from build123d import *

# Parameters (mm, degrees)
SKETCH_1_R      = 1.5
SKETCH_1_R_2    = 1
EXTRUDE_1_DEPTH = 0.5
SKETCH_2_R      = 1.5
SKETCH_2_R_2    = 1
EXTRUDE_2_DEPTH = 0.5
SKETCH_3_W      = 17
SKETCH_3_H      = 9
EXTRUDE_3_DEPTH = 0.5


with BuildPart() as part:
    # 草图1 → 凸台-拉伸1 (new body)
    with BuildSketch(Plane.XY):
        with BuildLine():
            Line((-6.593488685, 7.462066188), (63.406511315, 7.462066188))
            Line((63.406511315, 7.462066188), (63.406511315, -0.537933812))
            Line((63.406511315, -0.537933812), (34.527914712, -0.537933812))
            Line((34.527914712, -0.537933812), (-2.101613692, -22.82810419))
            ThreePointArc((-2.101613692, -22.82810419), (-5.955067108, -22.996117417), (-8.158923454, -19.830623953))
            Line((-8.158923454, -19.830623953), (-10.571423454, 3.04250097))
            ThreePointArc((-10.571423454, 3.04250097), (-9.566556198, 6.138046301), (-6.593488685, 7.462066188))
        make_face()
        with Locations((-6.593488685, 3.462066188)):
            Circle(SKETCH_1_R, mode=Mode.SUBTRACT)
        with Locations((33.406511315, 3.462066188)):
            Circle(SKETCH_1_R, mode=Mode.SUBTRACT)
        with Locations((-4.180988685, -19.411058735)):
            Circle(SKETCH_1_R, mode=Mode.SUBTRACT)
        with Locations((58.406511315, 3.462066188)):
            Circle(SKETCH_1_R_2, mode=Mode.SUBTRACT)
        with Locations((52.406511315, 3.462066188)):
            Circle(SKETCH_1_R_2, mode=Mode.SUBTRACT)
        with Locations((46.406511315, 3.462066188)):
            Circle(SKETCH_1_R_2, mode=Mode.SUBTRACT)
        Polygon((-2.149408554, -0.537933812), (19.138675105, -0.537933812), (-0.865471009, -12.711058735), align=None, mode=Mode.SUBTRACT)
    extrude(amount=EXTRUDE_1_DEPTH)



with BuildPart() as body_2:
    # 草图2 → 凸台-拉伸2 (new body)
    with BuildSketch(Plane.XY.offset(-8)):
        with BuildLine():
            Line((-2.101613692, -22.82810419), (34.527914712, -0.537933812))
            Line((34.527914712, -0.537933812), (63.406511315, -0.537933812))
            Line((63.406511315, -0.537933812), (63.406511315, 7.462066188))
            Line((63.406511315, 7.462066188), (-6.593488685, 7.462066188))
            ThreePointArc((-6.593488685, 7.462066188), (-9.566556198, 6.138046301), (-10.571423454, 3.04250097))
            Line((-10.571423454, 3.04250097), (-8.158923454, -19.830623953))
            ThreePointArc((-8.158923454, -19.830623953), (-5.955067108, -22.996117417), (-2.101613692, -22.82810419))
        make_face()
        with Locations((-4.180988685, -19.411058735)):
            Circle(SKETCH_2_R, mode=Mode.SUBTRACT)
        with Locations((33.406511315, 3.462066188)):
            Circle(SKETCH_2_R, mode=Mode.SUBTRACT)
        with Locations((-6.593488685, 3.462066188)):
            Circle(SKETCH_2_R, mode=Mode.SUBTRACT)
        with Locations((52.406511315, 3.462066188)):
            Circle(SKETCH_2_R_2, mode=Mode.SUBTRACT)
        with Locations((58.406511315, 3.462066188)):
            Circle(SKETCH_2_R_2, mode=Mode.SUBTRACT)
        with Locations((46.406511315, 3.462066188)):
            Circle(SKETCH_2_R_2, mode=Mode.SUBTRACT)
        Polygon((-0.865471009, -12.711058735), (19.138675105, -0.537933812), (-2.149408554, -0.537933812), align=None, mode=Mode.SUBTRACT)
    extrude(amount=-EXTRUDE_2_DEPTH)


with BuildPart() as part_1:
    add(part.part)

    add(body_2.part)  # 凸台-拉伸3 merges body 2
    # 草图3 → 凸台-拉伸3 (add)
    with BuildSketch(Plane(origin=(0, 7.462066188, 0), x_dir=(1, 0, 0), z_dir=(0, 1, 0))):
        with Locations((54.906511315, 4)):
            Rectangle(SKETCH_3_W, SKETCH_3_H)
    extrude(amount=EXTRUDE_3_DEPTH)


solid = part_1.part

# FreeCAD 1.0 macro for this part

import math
import FreeCAD as App
import Part
import Sketcher
from FreeCAD import Vector
Q = App.Units.Quantity

doc = App.newDocument("Part")
body = doc.addObject("PartDesign::Body", "Body")

# Sketch on XY plane
sketch1 = body.newObject("Sketcher::SketchObject", "Sketch")
sketch1.AttachmentSupport = (doc.getObject("XY_Plane"), [""])
sketch1.MapMode = "FlatFace"
sketch1.addGeometry([
    Part.LineSegment(Vector(63.406511, 7.462066, 0), Vector(-6.593489, 7.462066, 0)),  # 0
    Part.ArcOfCircle(Part.Circle(Vector(-6.593489, 3.462066, 0), Vector(0, 0, 1), 4), math.radians(90), math.radians(186.020904)),  # 1
    Part.LineSegment(Vector(-10.571423, 3.042501, 0), Vector(-8.158923, -19.830624, 0)),  # 2
    Part.ArcOfCircle(Part.Circle(Vector(-4.180989, -19.411059, 0), Vector(0, 0, 1), 4), math.radians(-173.979096), math.radians(-58.678229)),  # 3
    Part.LineSegment(Vector(-2.101614, -22.828104, 0), Vector(34.527915, -0.537934, 0)),  # 4
    Part.LineSegment(Vector(34.527915, -0.537934, 0), Vector(63.406511, -0.537934, 0)),  # 5
    Part.LineSegment(Vector(63.406511, -0.537934, 0), Vector(63.406511, 7.462066, 0)),  # 6
    Part.Circle(Vector(-4.180989, -19.411059, 0), Vector(0, 0, 1), 1.5),  # 7
    Part.Circle(Vector(58.406511, 3.462066, 0), Vector(0, 0, 1), 1),  # 8
    Part.Circle(Vector(52.406511, 3.462066, 0), Vector(0, 0, 1), 1),  # 9
    Part.Circle(Vector(46.406511, 3.462066, 0), Vector(0, 0, 1), 1),  # 10
    Part.Circle(Vector(33.406511, 3.462066, 0), Vector(0, 0, 1), 1.5),  # 11
    Part.LineSegment(Vector(-2.149409, -0.537934, 0), Vector(19.138675, -0.537934, 0)),  # 12
    Part.LineSegment(Vector(19.138675, -0.537934, 0), Vector(-0.865471, -12.711059, 0)),  # 13
    Part.LineSegment(Vector(-0.865471, -12.711059, 0), Vector(-2.149409, -0.537934, 0)),  # 14
    Part.Circle(Vector(-6.593489, 3.462066, 0), Vector(0, 0, 1), 1.5),  # 15
], False)
sketch1.addConstraint([
    Sketcher.Constraint("Tangent", 0, 2, 1, 1),
    Sketcher.Constraint("Tangent", 1, 2, 2, 1),
    Sketcher.Constraint("Tangent", 2, 2, 3, 1),
    Sketcher.Constraint("Tangent", 3, 2, 4, 1),
    Sketcher.Constraint("Coincident", 4, 2, 5, 1),
    Sketcher.Constraint("Coincident", 5, 2, 6, 1),
    Sketcher.Constraint("Coincident", 6, 2, 0, 1),
    Sketcher.Constraint("Coincident", 12, 2, 13, 1),
    Sketcher.Constraint("Coincident", 13, 2, 14, 1),
    Sketcher.Constraint("Coincident", 14, 2, 12, 1),
    Sketcher.Constraint("Horizontal", 0),
    Sketcher.Constraint("Horizontal", 5),
    Sketcher.Constraint("Vertical", 6),
    Sketcher.Constraint("Horizontal", 12),
    Sketcher.Constraint("Coincident", 7, 3, 3, 3),
    Sketcher.Constraint("Coincident", 15, 3, 1, 3),
    Sketcher.Constraint("Equal", 1, 3),
    Sketcher.Constraint("Equal", 8, 9),
    Sketcher.Constraint("Equal", 9, 10),
    Sketcher.Constraint("Equal", 7, 11),
    Sketcher.Constraint("Equal", 11, 15),
    Sketcher.Constraint("Parallel", 4, 13),
    Sketcher.Constraint("Parallel", 2, 14),
    Sketcher.Constraint("Horizontal", 1, 3, 8, 3),
    Sketcher.Constraint("Horizontal", 8, 3, 9, 3),
    Sketcher.Constraint("Horizontal", 9, 3, 10, 3),
    Sketcher.Constraint("Horizontal", 10, 3, 11, 3),
    Sketcher.Constraint("Horizontal", 5, 2, 12, 2),
    Sketcher.Constraint("Diameter", 7, Q("3 mm")),
    Sketcher.Constraint("Diameter", 8, Q("2 mm")),
    Sketcher.Constraint("Radius", 1, Q("4 mm")),
    Sketcher.Constraint("DistanceX", 0, 2, 0, 1, Q("70 mm")),
    Sketcher.Constraint("DistanceY", 6, 1, 6, 2, Q("8 mm")),
    Sketcher.Constraint("Distance", 2, Q("23 mm")),
    Sketcher.Constraint("DistanceX", 1, 3, 8, 3, Q("65 mm")),
    Sketcher.Constraint("DistanceX", 9, 3, 8, 3, Q("6 mm")),
    Sketcher.Constraint("DistanceX", 10, 3, 9, 3, Q("6 mm")),
    Sketcher.Constraint("DistanceX", 11, 3, 10, 3, Q("13 mm")),
    Sketcher.Constraint("DistanceY", 7, 3, 13, 2, Q("6.7 mm")),
    Sketcher.Constraint("DistanceY", -1, 1, 1, 2, Q("3.042501 mm")),
    Sketcher.Constraint("DistanceX", 1, 3, 3, 3, Q("2.4125 mm")),
    Sketcher.Constraint("DistanceX", 5, 1, 5, 2, Q("28.878597 mm")),
    Sketcher.Constraint("DistanceX", 1, 3, -1, 1, Q("6.593489 mm")),
    Sketcher.Constraint("DistanceX", 13, 2, -1, 1, Q("0.865471 mm")),
])
pad1 = body.newObject("PartDesign::Pad", "Pad")
pad1.Profile = sketch1
pad1.Length = 0.5
body2 = doc.addObject("PartDesign::Body", "Body001")

# Sketch on XY plane
sketch2 = body2.newObject("Sketcher::SketchObject", "Sketch001")
sketch2.AttachmentSupport = (doc.getObject("XY_Plane001"), [""])
sketch2.MapMode = "FlatFace"
sketch2.AttachmentOffset = App.Placement(Vector(0, 0, -8), App.Rotation())
sketch2.addGeometry([
    Part.LineSegment(Vector(-2.101614, -22.828104, 0), Vector(34.527915, -0.537934, 0)),  # 0
    Part.LineSegment(Vector(34.527915, -0.537934, 0), Vector(63.406511, -0.537934, 0)),  # 1
    Part.LineSegment(Vector(63.406511, -0.537934, 0), Vector(63.406511, 7.462066, 0)),  # 2
    Part.LineSegment(Vector(63.406511, 7.462066, 0), Vector(-6.593489, 7.462066, 0)),  # 3
    Part.ArcOfCircle(Part.Circle(Vector(-6.593489, 3.462066, 0), Vector(0, 0, 1), 4), math.radians(90), math.radians(186.020904)),  # 4
    Part.LineSegment(Vector(-10.571423, 3.042501, 0), Vector(-8.158923, -19.830624, 0)),  # 5
    Part.ArcOfCircle(Part.Circle(Vector(-4.180989, -19.411059, 0), Vector(0, 0, 1), 4), math.radians(-173.979096), math.radians(-58.678229)),  # 6
    Part.Circle(Vector(-4.180989, -19.411059, 0), Vector(0, 0, 1), 1.5),  # 7
    Part.LineSegment(Vector(19.138675, -0.537934, 0), Vector(-0.865471, -12.711059, 0)),  # 8
    Part.LineSegment(Vector(-0.865471, -12.711059, 0), Vector(-2.149409, -0.537934, 0)),  # 9
    Part.LineSegment(Vector(-2.149409, -0.537934, 0), Vector(19.138675, -0.537934, 0)),  # 10
    Part.Circle(Vector(-6.593489, 3.462066, 0), Vector(0, 0, 1), 1.5),  # 11
    Part.Circle(Vector(33.406511, 3.462066, 0), Vector(0, 0, 1), 1.5),  # 12
    Part.Circle(Vector(46.406511, 3.462066, 0), Vector(0, 0, 1), 1),  # 13
    Part.Circle(Vector(52.406511, 3.462066, 0), Vector(0, 0, 1), 1),  # 14
    Part.Circle(Vector(58.406511, 3.462066, 0), Vector(0, 0, 1), 1),  # 15
], False)
sketch2.addConstraint([
    Sketcher.Constraint("Coincident", 0, 2, 1, 1),
    Sketcher.Constraint("Coincident", 1, 2, 2, 1),
    Sketcher.Constraint("Coincident", 2, 2, 3, 1),
    Sketcher.Constraint("Tangent", 3, 2, 4, 1),
    Sketcher.Constraint("Tangent", 4, 2, 5, 1),
    Sketcher.Constraint("Tangent", 5, 2, 6, 1),
    Sketcher.Constraint("Tangent", 6, 2, 0, 1),
    Sketcher.Constraint("Coincident", 8, 2, 9, 1),
    Sketcher.Constraint("Coincident", 9, 2, 10, 1),
    Sketcher.Constraint("Coincident", 10, 2, 8, 1),
    Sketcher.Constraint("Horizontal", 1),
    Sketcher.Constraint("Vertical", 2),
    Sketcher.Constraint("Horizontal", 3),
    Sketcher.Constraint("Horizontal", 10),
    Sketcher.Constraint("Coincident", 7, 3, 6, 3),
    Sketcher.Constraint("Coincident", 11, 3, 4, 3),
    Sketcher.Constraint("Equal", 4, 6),
    Sketcher.Constraint("Equal", 7, 11),
    Sketcher.Constraint("Equal", 11, 12),
    Sketcher.Constraint("Equal", 13, 14),
    Sketcher.Constraint("Equal", 14, 15),
    Sketcher.Constraint("Parallel", 0, 8),
    Sketcher.Constraint("Parallel", 5, 9),
    Sketcher.Constraint("Horizontal", 11, 3, 12, 3),
    Sketcher.Constraint("Horizontal", 12, 3, 13, 3),
    Sketcher.Constraint("Horizontal", 13, 3, 14, 3),
    Sketcher.Constraint("Horizontal", 14, 3, 15, 3),
    Sketcher.Constraint("Horizontal", 1, 2, 9, 2),
    Sketcher.Constraint("Diameter", 7, Q("3 mm")),
    Sketcher.Constraint("Diameter", 13, Q("2 mm")),
    Sketcher.Constraint("Radius", 4, Q("4 mm")),
    Sketcher.Constraint("DistanceX", 3, 2, 3, 1, Q("70 mm")),
    Sketcher.Constraint("DistanceY", 2, 1, 2, 2, Q("8 mm")),
    Sketcher.Constraint("Distance", 5, Q("23 mm")),
    Sketcher.Constraint("DistanceX", 11, 3, 12, 3, Q("40 mm")),
    Sketcher.Constraint("DistanceX", 12, 3, 13, 3, Q("13 mm")),
    Sketcher.Constraint("DistanceX", 13, 3, 14, 3, Q("6 mm")),
    Sketcher.Constraint("DistanceX", 14, 3, 15, 3, Q("6 mm")),
    Sketcher.Constraint("DistanceY", 7, 3, 8, 2, Q("6.7 mm")),
    Sketcher.Constraint("DistanceY", -1, 1, 4, 2, Q("3.042501 mm")),
    Sketcher.Constraint("DistanceX", 4, 3, 6, 3, Q("2.4125 mm")),
    Sketcher.Constraint("DistanceX", 1, 1, 1, 2, Q("28.878597 mm")),
    Sketcher.Constraint("DistanceX", 4, 3, -1, 1, Q("6.593489 mm")),
    Sketcher.Constraint("DistanceX", 8, 2, -1, 1, Q("0.865471 mm")),
])
pad2 = body2.newObject("PartDesign::Pad", "Pad001")
pad2.Profile = sketch2
pad2.Length = 0.5
pad2.Reversed = True
body.AllowCompound = True
doc.recompute()

boolean = body.newObject("PartDesign::Boolean", "Boolean")
boolean.Type = "Fuse"
boolean.addObjects([body2])

# Sketch on XZ plane
sketch3 = body.newObject("Sketcher::SketchObject", "Sketch002")
sketch3.AttachmentSupport = (doc.getObject("XZ_Plane"), [""])
sketch3.MapMode = "FlatFace"
sketch3.AttachmentOffset = App.Placement(Vector(0, 0, -7.462066), App.Rotation())
sketch3.addGeometry([
    Part.LineSegment(Vector(46.406511, -8.5, 0), Vector(46.406511, 0.5, 0)),
    Part.LineSegment(Vector(46.406511, 0.5, 0), Vector(63.406511, 0.5, 0)),
    Part.LineSegment(Vector(63.406511, 0.5, 0), Vector(63.406511, -8.5, 0)),
    Part.LineSegment(Vector(63.406511, -8.5, 0), Vector(46.406511, -8.5, 0)),
], False)
sketch3.addConstraint([
    Sketcher.Constraint("Coincident", 0, 2, 1, 1),
    Sketcher.Constraint("Coincident", 1, 2, 2, 1),
    Sketcher.Constraint("Coincident", 2, 2, 3, 1),
    Sketcher.Constraint("Coincident", 3, 2, 0, 1),
    Sketcher.Constraint("Vertical", 0),
    Sketcher.Constraint("Horizontal", 1),
    Sketcher.Constraint("Vertical", 2),
    Sketcher.Constraint("Horizontal", 3),
    Sketcher.Constraint("DistanceX", 1, 1, 1, 2, Q("17 mm")),
    Sketcher.Constraint("DistanceY", 0, 1, 0, 2, Q("9 mm")),
    Sketcher.Constraint("DistanceY", -1, 1, 0, 2, Q("0.5 mm")),
    Sketcher.Constraint("DistanceX", -1, 1, 0, 2, Q("46.406511 mm")),
])
pad3 = body.newObject("PartDesign::Pad", "Pad002")
pad3.Profile = sketch3
pad3.Length = 0.5
pad3.Reversed = True

doc.recompute()
